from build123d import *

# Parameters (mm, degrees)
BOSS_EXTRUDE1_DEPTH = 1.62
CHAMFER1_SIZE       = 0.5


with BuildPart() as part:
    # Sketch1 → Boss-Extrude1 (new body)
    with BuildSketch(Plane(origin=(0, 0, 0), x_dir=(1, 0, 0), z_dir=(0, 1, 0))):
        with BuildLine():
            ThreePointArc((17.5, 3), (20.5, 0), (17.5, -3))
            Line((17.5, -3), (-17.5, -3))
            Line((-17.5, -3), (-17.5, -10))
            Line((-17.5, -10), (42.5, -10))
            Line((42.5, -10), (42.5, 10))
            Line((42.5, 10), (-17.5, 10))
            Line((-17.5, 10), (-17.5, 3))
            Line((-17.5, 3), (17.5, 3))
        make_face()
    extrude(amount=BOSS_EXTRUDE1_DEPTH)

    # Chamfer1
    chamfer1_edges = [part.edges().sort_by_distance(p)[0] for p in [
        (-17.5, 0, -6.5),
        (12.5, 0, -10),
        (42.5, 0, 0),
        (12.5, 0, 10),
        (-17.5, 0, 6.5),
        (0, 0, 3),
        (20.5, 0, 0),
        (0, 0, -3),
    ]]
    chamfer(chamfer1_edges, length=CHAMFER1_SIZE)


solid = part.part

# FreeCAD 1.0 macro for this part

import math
import FreeCAD as App
import Part
import Sketcher
from FreeCAD import Vector
Q = App.Units.Quantity


def edges_at(feature, points):
    """Names of the edges that pass closest to the given points."""
    edges = feature.Shape.Edges
    near = lambda p: min(range(len(edges)), key=lambda i: edges[i].distToShape(Part.Vertex(*p))[0])
    return sorted({f"Edge{near(p) + 1}" for p in points})

doc = App.newDocument("Part")
body = doc.addObject("PartDesign::Body", "Body")

sketch1 = body.newObject("Sketcher::SketchObject", "Sketch")
sketch1.AttachmentSupport = (doc.getObject("XZ_Plane"), [""])
sketch1.MapMode = "FlatFace"
sketch1.addGeometry([
    Part.ArcOfCircle(Part.Circle(Vector(17.5, 0, 0), Vector(0, 0, 1), 3), math.radians(-90), math.radians(90)),
    Part.LineSegment(Vector(17.5, 3, 0), Vector(-17.5, 3, 0)),
    Part.LineSegment(Vector(-17.5, 3, 0), Vector(-17.5, 10, 0)),
    Part.LineSegment(Vector(-17.5, 10, 0), Vector(42.5, 10, 0)),
    Part.LineSegment(Vector(42.5, 10, 0), Vector(42.5, -10, 0)),
    Part.LineSegment(Vector(42.5, -10, 0), Vector(-17.5, -10, 0)),
    Part.LineSegment(Vector(-17.5, -10, 0), Vector(-17.5, -3, 0)),
    Part.LineSegment(Vector(-17.5, -3, 0), Vector(17.5, -3, 0)),
], False)
sketch1.addConstraint([
    Sketcher.Constraint("Tangent", 0, 2, 1, 1),
    Sketcher.Constraint("Coincident", 1, 2, 2, 1),
    Sketcher.Constraint("Coincident", 2, 2, 3, 1),
    Sketcher.Constraint("Coincident", 3, 2, 4, 1),
    Sketcher.Constraint("Coincident", 4, 2, 5, 1),
    Sketcher.Constraint("Coincident", 5, 2, 6, 1),
    Sketcher.Constraint("Coincident", 6, 2, 7, 1),
    Sketcher.Constraint("Tangent", 7, 2, 0, 1),
    Sketcher.Constraint("Horizontal", 1),
    Sketcher.Constraint("Vertical", 2),
    Sketcher.Constraint("Horizontal", 3),
    Sketcher.Constraint("Vertical", 4),
    Sketcher.Constraint("Horizontal", 5),
    Sketcher.Constraint("Vertical", 6),
    Sketcher.Constraint("Horizontal", 7),
    Sketcher.Constraint("Symmetric", 0, 2, 6, 2, -1, 1),
    Sketcher.Constraint("Symmetric", 2, 2, 5, 2, -1),
    Sketcher.Constraint("Radius", 0, Q("3 mm")),
    Sketcher.Constraint("DistanceX", 1, 2, 1, 1, Q("35 mm")),
    Sketcher.Constraint("DistanceX", 3, 1, 3, 2, Q("60 mm")),
    Sketcher.Constraint("DistanceY", 2, 1, 2, 2, Q("7 mm")),
])
pad1 = body.newObject("PartDesign::Pad", "Pad")
pad1.Profile = sketch1
pad1.Length = 1.62
pad1.Reversed = True
doc.recompute()

chamfer = body.newObject("PartDesign::Chamfer", "Chamfer")
chamfer.Base = (pad1, edges_at(pad1, [
    (-17.5, 0, -6.5),
    (12.5, 0, -10),
    (42.5, 0, 0),
    (12.5, 0, 10),
    (-17.5, 0, 6.5),
    (0, 0, 3),
    (20.5, 0, 0),
    (0, 0, -3),
]))
chamfer.Size = 0.5

doc.recompute()
